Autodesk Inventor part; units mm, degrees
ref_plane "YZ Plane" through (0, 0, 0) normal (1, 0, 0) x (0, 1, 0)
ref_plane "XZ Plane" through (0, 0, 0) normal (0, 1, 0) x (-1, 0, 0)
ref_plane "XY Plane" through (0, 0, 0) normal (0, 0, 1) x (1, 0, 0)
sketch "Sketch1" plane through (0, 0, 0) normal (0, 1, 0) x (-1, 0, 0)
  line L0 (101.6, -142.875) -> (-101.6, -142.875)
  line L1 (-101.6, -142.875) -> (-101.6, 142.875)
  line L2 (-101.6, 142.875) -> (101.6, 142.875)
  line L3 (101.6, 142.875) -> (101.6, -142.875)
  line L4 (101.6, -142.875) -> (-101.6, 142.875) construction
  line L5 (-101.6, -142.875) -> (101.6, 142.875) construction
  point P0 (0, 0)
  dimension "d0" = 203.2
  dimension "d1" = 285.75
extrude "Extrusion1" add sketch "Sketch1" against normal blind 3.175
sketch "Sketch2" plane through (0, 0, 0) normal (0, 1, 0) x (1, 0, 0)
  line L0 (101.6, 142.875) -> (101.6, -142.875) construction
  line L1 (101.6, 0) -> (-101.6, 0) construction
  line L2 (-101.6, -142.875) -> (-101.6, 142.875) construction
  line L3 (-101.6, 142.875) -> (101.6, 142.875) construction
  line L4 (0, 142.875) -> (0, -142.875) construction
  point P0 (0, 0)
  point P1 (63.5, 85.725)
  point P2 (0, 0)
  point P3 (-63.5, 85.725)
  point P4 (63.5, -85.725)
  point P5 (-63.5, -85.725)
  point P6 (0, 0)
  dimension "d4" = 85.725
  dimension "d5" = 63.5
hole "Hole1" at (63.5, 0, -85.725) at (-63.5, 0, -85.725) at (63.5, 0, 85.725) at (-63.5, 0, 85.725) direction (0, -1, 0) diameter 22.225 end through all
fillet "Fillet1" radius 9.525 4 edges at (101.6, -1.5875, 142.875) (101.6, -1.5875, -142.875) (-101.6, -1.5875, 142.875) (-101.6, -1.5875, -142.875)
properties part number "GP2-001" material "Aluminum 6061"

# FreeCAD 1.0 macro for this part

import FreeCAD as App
import Part
import Sketcher
Q = App.Units.Quantity


def edges_at(feature, points):
    """Names of the edges that pass closest to the given points."""
    edges = feature.Shape.Edges
    near = lambda p: min(range(len(edges)), key=lambda i: edges[i].distToShape(Part.Vertex(*p))[0])
    return sorted({f"Edge{near(p) + 1}" for p in points})

doc = App.newDocument("Part")
body = doc.addObject("PartDesign::Body", "Body")

sketch1 = body.newObject("Sketcher::SketchObject", "Sketch")
sketch1.AttachmentSupport = (doc.getObject("XZ_Plane"), [""])
sketch1.MapMode = "FlatFace"
sketch1.addGeometry(Part.LineSegment(App.Vector(102, -143, 0), App.Vector(-102, -143, 0)), False)
sketch1.addGeometry(Part.LineSegment(App.Vector(-102, -143, 0), App.Vector(-102, 143, 0)), False)
sketch1.addGeometry(Part.LineSegment(App.Vector(-102, 143, 0), App.Vector(102, 143, 0)), False)
sketch1.addGeometry(Part.LineSegment(App.Vector(102, 143, 0), App.Vector(102, -143, 0)), False)
sketch1.addConstraint(Sketcher.Constraint("Coincident", 0, 2, 1, 1))
sketch1.addConstraint(Sketcher.Constraint("Coincident", 1, 2, 2, 1))
sketch1.addConstraint(Sketcher.Constraint("Coincident", 2, 2, 3, 1))
sketch1.addConstraint(Sketcher.Constraint("Coincident", 3, 2, 0, 1))
sketch1.addConstraint(Sketcher.Constraint("Horizontal", 0))
sketch1.addConstraint(Sketcher.Constraint("Vertical", 1))
sketch1.addConstraint(Sketcher.Constraint("Horizontal", 2))
sketch1.addConstraint(Sketcher.Constraint("Vertical", 3))
sketch1.addConstraint(Sketcher.Constraint("Symmetric", 0, 2, 2, 2, -1, 1))
sketch1.addConstraint(Sketcher.Constraint("DistanceX", 0, 2, 0, 1, Q("8 in")))
sketch1.addConstraint(Sketcher.Constraint("DistanceY", 1, 1, 1, 2, Q("11.25 in")))
pad1 = body.newObject("PartDesign::Pad", "Pad")
pad1.Profile = sketch1
pad1.Length = Q("0.125 in")

sketch2 = body.newObject("Sketcher::SketchObject", "Sketch001")
sketch2.AttachmentSupport = (doc.getObject("XZ_Plane"), [""])
sketch2.MapMode = "FlatFace"
sketch2.addGeometry(Part.Circle(App.Vector(64, -86, 0), App.Vector(0, 0, 1), 11), False)
sketch2.addGeometry(Part.Circle(App.Vector(-64, -86, 0), App.Vector(0, 0, 1), 11), False)
sketch2.addGeometry(Part.Circle(App.Vector(64, 86, 0), App.Vector(0, 0, 1), 11), False)
sketch2.addGeometry(Part.Circle(App.Vector(-64, 86, 0), App.Vector(0, 0, 1), 11), False)
sketch2.addConstraint(Sketcher.Constraint("Equal", 0, 1))
sketch2.addConstraint(Sketcher.Constraint("Equal", 1, 2))
sketch2.addConstraint(Sketcher.Constraint("Equal", 2, 3))
sketch2.addConstraint(Sketcher.Constraint("Symmetric", 1, 3, 2, 3, -1, 1))
sketch2.addConstraint(Sketcher.Constraint("Symmetric", 0, 3, 3, 3, -1, 1))
sketch2.addConstraint(Sketcher.Constraint("Symmetric", 0, 3, 1, 3, -2))
sketch2.addConstraint(Sketcher.Constraint("Diameter", 0, Q("0.875 in")))
sketch2.addConstraint(Sketcher.Constraint("DistanceX", 1, 3, 0, 3, Q("5 in")))
sketch2.addConstraint(Sketcher.Constraint("DistanceY", 0, 3, 2, 3, Q("6.75 in")))
doc.recompute()
hole = body.newObject("PartDesign::Hole", "Hole")
hole.Profile = sketch2
hole.ThreadType = "None"
hole.Diameter = Q("0.875 in")
hole.DepthType = "ThroughAll"
hole.Reversed = True
doc.recompute()

fillet = body.newObject("PartDesign::Fillet", "Fillet")
fillet.Base = (hole, edges_at(hole, [
    (101.6, -1.587, 142.875),
    (101.6, -1.587, -142.875),
    (-101.6, -1.587, 142.875),
    (-101.6, -1.587, -142.875),
]))
fillet.Radius = Q("0.375 in")

doc.recompute()
